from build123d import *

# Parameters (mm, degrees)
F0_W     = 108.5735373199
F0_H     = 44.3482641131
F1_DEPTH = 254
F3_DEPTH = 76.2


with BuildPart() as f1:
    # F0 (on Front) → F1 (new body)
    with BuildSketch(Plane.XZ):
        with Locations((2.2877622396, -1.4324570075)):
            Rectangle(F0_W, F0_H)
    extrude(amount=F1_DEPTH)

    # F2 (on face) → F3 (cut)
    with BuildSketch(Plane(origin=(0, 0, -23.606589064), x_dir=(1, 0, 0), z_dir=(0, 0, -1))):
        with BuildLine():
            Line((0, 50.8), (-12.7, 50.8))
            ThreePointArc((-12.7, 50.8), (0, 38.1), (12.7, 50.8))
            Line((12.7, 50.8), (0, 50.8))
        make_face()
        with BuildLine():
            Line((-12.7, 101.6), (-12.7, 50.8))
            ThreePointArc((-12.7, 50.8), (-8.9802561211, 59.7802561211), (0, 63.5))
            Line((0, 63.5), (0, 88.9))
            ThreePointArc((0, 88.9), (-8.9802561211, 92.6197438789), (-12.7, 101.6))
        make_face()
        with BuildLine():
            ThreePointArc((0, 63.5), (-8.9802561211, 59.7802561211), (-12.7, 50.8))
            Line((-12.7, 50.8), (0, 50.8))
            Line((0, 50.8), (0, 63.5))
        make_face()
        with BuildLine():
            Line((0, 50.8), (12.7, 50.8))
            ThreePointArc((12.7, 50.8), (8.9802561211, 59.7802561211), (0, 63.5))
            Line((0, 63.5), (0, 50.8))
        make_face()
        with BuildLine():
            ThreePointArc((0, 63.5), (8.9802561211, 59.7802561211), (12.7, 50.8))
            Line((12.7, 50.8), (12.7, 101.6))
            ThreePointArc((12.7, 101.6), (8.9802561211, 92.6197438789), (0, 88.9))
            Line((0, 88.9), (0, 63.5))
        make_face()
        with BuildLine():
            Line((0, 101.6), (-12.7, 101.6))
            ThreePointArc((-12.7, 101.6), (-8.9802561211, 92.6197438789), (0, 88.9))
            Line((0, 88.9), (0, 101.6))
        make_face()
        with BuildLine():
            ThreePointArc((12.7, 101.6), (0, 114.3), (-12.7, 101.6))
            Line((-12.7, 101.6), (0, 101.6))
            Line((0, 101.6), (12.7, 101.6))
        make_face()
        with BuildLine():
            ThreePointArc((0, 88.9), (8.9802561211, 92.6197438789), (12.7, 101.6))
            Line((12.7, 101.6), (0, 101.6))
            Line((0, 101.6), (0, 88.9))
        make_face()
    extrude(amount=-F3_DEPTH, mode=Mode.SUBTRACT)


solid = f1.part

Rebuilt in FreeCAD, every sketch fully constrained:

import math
import FreeCAD as App
import Part
import Sketcher
from FreeCAD import Vector
Q = App.Units.Quantity

doc = App.newDocument("Part")
body = doc.addObject("PartDesign::Body", "Body")

# Sketch on XZ plane
sketch1 = body.newObject("Sketcher::SketchObject", "Sketch")
sketch1.AttachmentSupport = (doc.getObject("XZ_Plane"), [""])
sketch1.MapMode = "FlatFace"
sketch1.addGeometry(Part.LineSegment(Vector(-52, 21, 0), Vector(-52, -24, 0)), False)
sketch1.addGeometry(Part.LineSegment(Vector(-52, -24, 0), Vector(57, -24, 0)), False)
sketch1.addGeometry(Part.LineSegment(Vector(57, -24, 0), Vector(57, 21, 0)), False)
sketch1.addGeometry(Part.LineSegment(Vector(57, 21, 0), Vector(-52, 21, 0)), False)
sketch1.addConstraint(Sketcher.Constraint("Coincident", 0, 2, 1, 1))
sketch1.addConstraint(Sketcher.Constraint("Coincident", 1, 2, 2, 1))
sketch1.addConstraint(Sketcher.Constraint("Coincident", 2, 2, 3, 1))
sketch1.addConstraint(Sketcher.Constraint("Coincident", 3, 2, 0, 1))
sketch1.addConstraint(Sketcher.Constraint("Vertical", 0))
sketch1.addConstraint(Sketcher.Constraint("Horizontal", 1))
sketch1.addConstraint(Sketcher.Constraint("Vertical", 2))
sketch1.addConstraint(Sketcher.Constraint("Horizontal", 3))
sketch1.addConstraint(Sketcher.Constraint("DistanceX", 1, 1, 1, 2, 108.573537))
sketch1.addConstraint(Sketcher.Constraint("DistanceY", 0, 2, 0, 1, 44.348264))
sketch1.addConstraint(Sketcher.Constraint("DistanceY", 0, 2, -1, 1, 23.606589))
sketch1.addConstraint(Sketcher.Constraint("DistanceX", -1, 1, 1, 2, 56.574531))
pad1 = body.newObject("PartDesign::Pad", "Pad")
pad1.Profile = sketch1
pad1.Length = Q("10 in")

# Sketch on XY plane
sketch2 = body.newObject("Sketcher::SketchObject", "Sketch001")
sketch2.AttachmentSupport = (doc.getObject("XY_Plane"), [""])
sketch2.MapMode = "FlatFace"
sketch2.AttachmentOffset = App.Placement(Vector(0, 0, -23.606589), App.Rotation())
sketch2.addGeometry(Part.LineSegment(Vector(13, -51, 0), Vector(13, -102, 0)), False)
sketch2.addGeometry(Part.ArcOfCircle(Part.Circle(Vector(0, -102, 0), Vector(0, 0, 1), 13), math.radians(180), math.radians(360)), False)
sketch2.addGeometry(Part.LineSegment(Vector(-13, -102, 0), Vector(-13, -51, 0)), False)
sketch2.addGeometry(Part.ArcOfCircle(Part.Circle(Vector(0, -51, 0), Vector(0, 0, 1), 13), math.radians(0), math.radians(180)), False)
sketch2.addConstraint(Sketcher.Constraint("Tangent", 0, 2, 1, 2))
sketch2.addConstraint(Sketcher.Constraint("Tangent", 1, 1, 2, 1))
sketch2.addConstraint(Sketcher.Constraint("Tangent", 2, 2, 3, 2))
sketch2.addConstraint(Sketcher.Constraint("Tangent", 3, 1, 0, 1))
sketch2.addConstraint(Sketcher.Constraint("Vertical", 0))
sketch2.addConstraint(Sketcher.Constraint("Vertical", 2))
sketch2.addConstraint(Sketcher.Constraint("PointOnObject", 1, 3, -2))
sketch2.addConstraint(Sketcher.Constraint("Radius", 1, Q("0.5 in")))
sketch2.addConstraint(Sketcher.Constraint("DistanceY", 0, 2, 0, 1, Q("2 in")))
sketch2.addConstraint(Sketcher.Constraint("DistanceY", 1, 3, -1, 1, Q("4 in")))
pocket1 = body.newObject("PartDesign::Pocket", "Pocket")
pocket1.Profile = sketch2
pocket1.Length = Q("3 in")
pocket1.Reversed = True

doc.recompute()
